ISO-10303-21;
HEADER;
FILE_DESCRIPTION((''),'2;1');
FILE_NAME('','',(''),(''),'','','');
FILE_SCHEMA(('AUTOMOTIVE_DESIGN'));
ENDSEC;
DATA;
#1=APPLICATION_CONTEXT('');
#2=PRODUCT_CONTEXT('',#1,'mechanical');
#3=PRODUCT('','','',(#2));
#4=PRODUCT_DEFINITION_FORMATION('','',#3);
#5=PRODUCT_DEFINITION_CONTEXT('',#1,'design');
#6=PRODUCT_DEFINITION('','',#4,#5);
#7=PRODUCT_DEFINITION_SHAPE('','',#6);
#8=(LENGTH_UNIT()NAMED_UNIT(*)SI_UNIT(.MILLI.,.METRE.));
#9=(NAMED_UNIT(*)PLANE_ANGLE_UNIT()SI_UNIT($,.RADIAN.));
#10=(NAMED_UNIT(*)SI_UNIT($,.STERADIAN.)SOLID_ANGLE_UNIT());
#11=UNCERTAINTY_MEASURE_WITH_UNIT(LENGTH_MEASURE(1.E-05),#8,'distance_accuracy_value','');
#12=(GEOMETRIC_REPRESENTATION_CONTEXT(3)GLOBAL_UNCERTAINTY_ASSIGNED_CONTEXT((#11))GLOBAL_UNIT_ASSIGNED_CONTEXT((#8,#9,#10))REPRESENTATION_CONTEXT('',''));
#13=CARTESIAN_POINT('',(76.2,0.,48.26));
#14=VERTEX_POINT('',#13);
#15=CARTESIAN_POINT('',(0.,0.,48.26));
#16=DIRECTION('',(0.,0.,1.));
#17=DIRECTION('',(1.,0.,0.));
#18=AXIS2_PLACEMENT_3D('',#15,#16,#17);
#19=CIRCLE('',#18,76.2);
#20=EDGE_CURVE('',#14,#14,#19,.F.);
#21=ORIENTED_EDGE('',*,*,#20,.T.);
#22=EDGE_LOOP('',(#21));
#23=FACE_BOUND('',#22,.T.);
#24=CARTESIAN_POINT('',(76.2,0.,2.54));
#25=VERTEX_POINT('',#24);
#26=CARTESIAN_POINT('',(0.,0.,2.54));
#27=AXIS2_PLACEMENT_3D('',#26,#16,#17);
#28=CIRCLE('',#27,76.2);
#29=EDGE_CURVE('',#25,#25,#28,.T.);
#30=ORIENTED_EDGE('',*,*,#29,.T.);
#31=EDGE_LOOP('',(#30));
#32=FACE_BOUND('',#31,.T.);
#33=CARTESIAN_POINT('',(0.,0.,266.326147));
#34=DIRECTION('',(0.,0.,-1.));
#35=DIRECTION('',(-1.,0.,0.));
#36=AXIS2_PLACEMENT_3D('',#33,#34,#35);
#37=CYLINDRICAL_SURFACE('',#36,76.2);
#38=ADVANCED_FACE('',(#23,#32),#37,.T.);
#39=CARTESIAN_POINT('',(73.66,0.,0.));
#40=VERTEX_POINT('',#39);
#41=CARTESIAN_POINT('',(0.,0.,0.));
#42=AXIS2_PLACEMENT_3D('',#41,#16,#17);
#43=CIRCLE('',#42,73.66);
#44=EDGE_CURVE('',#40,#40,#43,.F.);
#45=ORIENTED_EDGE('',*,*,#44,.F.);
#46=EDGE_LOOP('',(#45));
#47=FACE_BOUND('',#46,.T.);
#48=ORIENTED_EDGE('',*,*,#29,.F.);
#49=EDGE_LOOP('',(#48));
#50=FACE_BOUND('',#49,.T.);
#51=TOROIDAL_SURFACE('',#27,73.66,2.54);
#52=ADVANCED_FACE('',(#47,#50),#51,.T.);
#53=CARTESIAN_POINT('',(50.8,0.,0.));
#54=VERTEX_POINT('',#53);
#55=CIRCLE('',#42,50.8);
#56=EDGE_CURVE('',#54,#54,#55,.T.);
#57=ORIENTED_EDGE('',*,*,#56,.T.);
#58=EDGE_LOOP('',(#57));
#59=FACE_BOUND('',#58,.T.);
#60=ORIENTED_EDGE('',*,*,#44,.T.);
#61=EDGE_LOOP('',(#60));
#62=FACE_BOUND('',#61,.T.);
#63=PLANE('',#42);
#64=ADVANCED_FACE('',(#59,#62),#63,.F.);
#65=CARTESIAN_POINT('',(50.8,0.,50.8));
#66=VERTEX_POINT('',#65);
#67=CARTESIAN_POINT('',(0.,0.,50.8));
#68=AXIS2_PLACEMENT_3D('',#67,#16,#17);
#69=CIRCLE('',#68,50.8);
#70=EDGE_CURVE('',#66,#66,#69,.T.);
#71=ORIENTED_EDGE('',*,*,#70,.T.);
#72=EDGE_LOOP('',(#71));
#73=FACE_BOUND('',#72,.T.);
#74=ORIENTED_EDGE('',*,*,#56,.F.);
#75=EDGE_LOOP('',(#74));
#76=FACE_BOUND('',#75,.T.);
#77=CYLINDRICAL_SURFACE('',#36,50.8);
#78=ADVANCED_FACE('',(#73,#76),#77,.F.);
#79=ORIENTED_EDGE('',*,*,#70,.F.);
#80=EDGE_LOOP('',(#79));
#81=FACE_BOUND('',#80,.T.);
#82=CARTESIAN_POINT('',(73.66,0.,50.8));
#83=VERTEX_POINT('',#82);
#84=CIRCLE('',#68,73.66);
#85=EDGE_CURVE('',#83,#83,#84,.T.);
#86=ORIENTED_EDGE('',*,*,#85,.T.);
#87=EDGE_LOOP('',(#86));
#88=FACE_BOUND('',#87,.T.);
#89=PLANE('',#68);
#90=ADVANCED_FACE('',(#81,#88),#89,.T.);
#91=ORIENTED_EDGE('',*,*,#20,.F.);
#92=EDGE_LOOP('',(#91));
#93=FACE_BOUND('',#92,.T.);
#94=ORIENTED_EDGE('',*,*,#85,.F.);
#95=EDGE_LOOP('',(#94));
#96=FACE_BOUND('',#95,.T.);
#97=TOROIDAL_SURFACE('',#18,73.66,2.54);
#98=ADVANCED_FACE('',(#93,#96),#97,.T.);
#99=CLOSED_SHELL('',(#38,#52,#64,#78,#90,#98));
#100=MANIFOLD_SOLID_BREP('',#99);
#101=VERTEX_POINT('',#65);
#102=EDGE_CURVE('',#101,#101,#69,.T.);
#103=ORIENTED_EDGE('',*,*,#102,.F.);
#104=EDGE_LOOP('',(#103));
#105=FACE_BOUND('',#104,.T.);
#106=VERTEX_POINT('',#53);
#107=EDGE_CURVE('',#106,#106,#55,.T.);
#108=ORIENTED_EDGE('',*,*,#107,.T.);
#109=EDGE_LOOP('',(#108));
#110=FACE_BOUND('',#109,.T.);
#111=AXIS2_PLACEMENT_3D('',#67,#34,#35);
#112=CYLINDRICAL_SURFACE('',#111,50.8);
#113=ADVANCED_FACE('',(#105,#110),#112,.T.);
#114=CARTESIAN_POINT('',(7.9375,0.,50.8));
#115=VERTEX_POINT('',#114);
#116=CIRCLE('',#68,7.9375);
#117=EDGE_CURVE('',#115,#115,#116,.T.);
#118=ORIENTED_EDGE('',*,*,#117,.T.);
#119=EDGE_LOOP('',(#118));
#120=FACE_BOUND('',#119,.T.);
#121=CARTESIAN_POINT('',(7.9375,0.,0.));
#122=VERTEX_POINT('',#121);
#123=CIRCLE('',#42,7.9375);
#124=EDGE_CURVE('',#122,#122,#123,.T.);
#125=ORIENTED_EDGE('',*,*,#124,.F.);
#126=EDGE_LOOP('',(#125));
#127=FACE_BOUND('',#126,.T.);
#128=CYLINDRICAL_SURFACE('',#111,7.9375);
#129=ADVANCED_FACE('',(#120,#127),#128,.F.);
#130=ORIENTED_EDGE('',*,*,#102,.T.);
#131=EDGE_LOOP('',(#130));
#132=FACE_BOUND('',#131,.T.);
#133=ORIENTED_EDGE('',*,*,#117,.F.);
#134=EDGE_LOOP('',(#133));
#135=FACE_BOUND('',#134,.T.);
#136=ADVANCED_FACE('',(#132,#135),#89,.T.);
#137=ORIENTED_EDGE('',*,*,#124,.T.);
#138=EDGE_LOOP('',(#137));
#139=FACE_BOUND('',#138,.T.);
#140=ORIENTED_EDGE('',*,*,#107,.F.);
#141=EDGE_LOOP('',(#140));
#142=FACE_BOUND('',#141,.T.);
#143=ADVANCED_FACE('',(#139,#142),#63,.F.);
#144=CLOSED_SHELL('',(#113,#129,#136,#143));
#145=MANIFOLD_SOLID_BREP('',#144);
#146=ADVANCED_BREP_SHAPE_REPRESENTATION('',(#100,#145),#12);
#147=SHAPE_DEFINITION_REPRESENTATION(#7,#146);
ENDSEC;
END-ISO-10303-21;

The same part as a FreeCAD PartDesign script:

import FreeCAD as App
import Part
import Sketcher

V = App.Vector
Q = App.Units.Quantity


def edges_at(feature, points):
    """Names of the edges that pass closest to the given points."""
    edges = feature.Shape.Edges
    near = lambda p: min(range(len(edges)), key=lambda i: edges[i].distToShape(Part.Vertex(*p))[0])
    return sorted({f"Edge{near(p) + 1}" for p in points})

doc = App.newDocument("Part")
params = doc.addObject("Spreadsheet::Sheet", "Params")
for row, (alias, value) in enumerate([
    ("sketch1_diameter", "4 in"),
    ("pad1_length", "2 in"),
    ("sketch2_diameter", "0.625 in"),
    ("sketch3_diameter", "6 in"),
    ("sketch3_diameter2", "4 in"),
    ("pad2_length", "2 in"),
    ("fillet_radius", "0.1 in"),
], start=1):
    params.set(f"A{row}", alias)
    params.set(f"B{row}", "=" + value)
    params.setAlias(f"B{row}", alias)

body = doc.addObject("PartDesign::Body", "Body")

# Sketch on XY plane
sketch1 = doc.addObject("Sketcher::SketchObject", "Sketch")
body.addObject(sketch1)
sketch1.AttachmentSupport = (doc.XY_Plane, [""])
sketch1.MapMode = "FlatFace"
sketch1.addGeometry(Part.Circle(V(0, 0, 0), V(0, 0, 1), 50.8), False)
sketch1.addConstraint([
    Sketcher.Constraint("Coincident", 0, 3, -1, 1),
    Sketcher.Constraint("Diameter", 0, Q("4 in")),
])
sketch1.setExpression("Constraints[1]", "Params.sketch1_diameter")
pad1 = doc.addObject("PartDesign::Pad", "Pad")
body.addObject(pad1)
pad1.Profile = sketch1
pad1.setExpression("Length", "Params.pad1_length")

# Sketch on XY plane
sketch2 = doc.addObject("Sketcher::SketchObject", "Sketch001")
body.addObject(sketch2)
sketch2.AttachmentSupport = (doc.XY_Plane, [""])
sketch2.MapMode = "FlatFace"
sketch2.addGeometry(Part.Circle(V(0, 0, 0), V(0, 0, 1), 7.9375), False)
sketch2.addConstraint([
    Sketcher.Constraint("Coincident", 0, 3, -1, 1),
    Sketcher.Constraint("Diameter", 0, Q("0.625 in")),
])
sketch2.setExpression("Constraints[1]", "Params.sketch2_diameter")
pocket1 = doc.addObject("PartDesign::Pocket", "Pocket")
body.addObject(pocket1)
pocket1.Profile = sketch2
pocket1.Type = "ThroughAll"
pocket1.Reversed = True
body2 = doc.addObject("PartDesign::Body", "Body001")

# Sketch on XY plane
sketch3 = doc.addObject("Sketcher::SketchObject", "Sketch002")
body2.addObject(sketch3)
sketch3.AttachmentSupport = (doc.getObject("XY_Plane001"), [""])
sketch3.MapMode = "FlatFace"
sketch3.addGeometry([
    Part.Circle(V(0, 0, 0), V(0, 0, 1), 76.2),
    Part.Circle(V(0, 0, 0), V(0, 0, 1), 50.8),
], False)
sketch3.addConstraint([
    Sketcher.Constraint("Coincident", 0, 3, -1, 1),
    Sketcher.Constraint("Coincident", 1, 3, -1, 1),
    Sketcher.Constraint("Diameter", 0, Q("6 in")),
    Sketcher.Constraint("Diameter", 1, Q("4 in")),
])
sketch3.setExpression("Constraints[2]", "Params.sketch3_diameter")
sketch3.setExpression("Constraints[3]", "Params.sketch3_diameter2")
pad2 = doc.addObject("PartDesign::Pad", "Pad001")
body2.addObject(pad2)
pad2.Profile = sketch3
pad2.setExpression("Length", "Params.pad2_length")
doc.recompute()

fillet = doc.addObject("PartDesign::Fillet", "Fillet")
body2.addObject(fillet)
fillet.Base = (pad2, edges_at(pad2, [(-76.2, 0, 50.8), (-76.2, 0, 0)]))
fillet.setExpression("Radius", "Params.fillet_radius")

doc.recompute()
